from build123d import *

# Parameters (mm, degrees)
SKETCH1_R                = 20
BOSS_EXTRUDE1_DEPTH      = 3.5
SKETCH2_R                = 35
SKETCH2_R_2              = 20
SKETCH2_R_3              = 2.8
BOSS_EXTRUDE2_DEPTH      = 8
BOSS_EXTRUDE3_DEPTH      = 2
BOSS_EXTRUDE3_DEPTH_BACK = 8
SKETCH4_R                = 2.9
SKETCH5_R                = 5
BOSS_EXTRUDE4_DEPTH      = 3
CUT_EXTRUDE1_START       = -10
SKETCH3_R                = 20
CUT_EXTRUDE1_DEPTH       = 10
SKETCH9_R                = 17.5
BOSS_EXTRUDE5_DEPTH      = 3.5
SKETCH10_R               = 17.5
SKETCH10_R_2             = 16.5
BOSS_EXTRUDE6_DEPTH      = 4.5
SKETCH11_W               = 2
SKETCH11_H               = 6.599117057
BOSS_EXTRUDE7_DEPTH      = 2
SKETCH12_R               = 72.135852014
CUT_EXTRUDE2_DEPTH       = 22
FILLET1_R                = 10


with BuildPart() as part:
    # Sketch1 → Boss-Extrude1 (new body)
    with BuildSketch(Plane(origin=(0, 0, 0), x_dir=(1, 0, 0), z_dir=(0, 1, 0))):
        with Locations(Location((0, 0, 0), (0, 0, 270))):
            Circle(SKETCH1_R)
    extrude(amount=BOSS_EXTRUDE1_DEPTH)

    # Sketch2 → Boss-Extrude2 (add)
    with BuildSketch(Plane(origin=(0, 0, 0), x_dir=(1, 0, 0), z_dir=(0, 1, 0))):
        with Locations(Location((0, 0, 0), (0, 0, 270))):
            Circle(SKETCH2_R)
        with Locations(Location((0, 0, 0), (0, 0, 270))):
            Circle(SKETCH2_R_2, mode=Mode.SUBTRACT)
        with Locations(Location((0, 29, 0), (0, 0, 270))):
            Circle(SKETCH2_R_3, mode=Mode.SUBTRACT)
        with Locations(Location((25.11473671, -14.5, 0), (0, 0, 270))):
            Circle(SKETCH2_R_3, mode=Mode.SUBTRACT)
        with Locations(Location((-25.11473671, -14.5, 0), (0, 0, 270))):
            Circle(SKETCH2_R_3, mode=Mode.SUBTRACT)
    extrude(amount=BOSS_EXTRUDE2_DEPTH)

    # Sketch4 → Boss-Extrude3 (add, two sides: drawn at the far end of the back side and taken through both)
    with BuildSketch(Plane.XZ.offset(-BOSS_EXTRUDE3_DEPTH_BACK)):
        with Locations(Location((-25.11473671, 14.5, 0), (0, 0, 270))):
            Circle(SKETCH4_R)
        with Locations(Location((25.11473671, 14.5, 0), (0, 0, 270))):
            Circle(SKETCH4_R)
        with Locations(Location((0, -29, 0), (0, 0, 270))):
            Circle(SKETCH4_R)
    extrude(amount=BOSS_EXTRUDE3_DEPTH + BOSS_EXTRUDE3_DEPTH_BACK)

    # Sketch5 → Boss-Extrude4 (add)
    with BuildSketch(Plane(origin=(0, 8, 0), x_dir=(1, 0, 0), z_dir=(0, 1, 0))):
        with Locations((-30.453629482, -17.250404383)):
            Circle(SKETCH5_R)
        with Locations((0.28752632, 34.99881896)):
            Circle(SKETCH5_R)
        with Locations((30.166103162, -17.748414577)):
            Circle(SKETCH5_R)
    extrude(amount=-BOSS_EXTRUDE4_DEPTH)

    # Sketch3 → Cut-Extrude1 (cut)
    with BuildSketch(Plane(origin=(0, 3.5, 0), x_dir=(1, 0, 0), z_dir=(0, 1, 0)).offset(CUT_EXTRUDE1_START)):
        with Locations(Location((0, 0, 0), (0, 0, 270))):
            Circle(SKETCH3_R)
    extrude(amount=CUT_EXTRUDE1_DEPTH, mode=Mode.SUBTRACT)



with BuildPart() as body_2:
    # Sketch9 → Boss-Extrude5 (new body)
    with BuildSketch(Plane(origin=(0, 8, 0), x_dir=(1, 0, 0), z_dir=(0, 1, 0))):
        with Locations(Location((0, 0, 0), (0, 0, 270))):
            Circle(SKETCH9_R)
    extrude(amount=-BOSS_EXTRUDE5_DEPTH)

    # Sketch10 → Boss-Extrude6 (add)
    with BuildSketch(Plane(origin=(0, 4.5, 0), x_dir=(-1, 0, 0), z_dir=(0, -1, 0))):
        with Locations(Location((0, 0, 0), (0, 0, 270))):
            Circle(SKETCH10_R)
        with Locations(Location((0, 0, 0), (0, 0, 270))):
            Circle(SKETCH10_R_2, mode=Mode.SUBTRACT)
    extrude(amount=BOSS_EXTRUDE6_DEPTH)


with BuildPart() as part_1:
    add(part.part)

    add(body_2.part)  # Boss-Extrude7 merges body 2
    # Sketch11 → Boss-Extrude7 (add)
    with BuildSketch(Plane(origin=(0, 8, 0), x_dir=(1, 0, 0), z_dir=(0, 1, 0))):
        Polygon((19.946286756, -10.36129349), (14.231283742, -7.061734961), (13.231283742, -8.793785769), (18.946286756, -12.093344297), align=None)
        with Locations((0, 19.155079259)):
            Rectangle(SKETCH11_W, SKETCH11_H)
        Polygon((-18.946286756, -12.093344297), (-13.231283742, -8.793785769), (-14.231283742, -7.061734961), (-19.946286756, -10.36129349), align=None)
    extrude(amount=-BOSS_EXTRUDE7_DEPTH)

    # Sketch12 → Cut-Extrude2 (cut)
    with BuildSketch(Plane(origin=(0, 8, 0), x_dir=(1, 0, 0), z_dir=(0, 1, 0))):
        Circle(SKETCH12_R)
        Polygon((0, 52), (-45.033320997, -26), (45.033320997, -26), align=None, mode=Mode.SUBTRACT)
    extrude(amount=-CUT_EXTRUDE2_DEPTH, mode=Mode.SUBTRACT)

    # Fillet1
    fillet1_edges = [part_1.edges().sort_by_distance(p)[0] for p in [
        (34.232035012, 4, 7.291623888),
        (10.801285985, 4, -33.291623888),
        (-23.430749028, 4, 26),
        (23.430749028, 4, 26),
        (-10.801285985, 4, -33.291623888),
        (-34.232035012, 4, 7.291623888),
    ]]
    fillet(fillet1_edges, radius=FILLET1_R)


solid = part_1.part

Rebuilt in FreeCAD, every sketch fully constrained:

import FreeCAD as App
import Part
import Sketcher
Q = App.Units.Quantity


def edges_at(feature, points):
    """Names of the edges that pass closest to the given points."""
    edges = feature.Shape.Edges
    near = lambda p: min(range(len(edges)), key=lambda i: edges[i].distToShape(Part.Vertex(*p))[0])
    return sorted({f"Edge{near(p) + 1}" for p in points})


def add_polygon(sketch, points):
    """Adds a closed chain of lines whose ends are joined by coincident constraints."""
    first, n = sketch.GeometryCount, len(points)
    for a, b in zip(points, points[1:] + points[:1]):
        sketch.addGeometry(Part.LineSegment(App.Vector(*a, 0), App.Vector(*b, 0)), False)
    for i in range(n):
        sketch.addConstraint(Sketcher.Constraint("Coincident", first + i, 2, first + (i + 1) % n, 1))

doc = App.newDocument("Part")
body = doc.addObject("PartDesign::Body", "Body")

# Sketch on XZ plane
sketch1 = body.newObject("Sketcher::SketchObject", "Sketch")
sketch1.AttachmentSupport = (doc.getObject("XZ_Plane"), [""])
sketch1.MapMode = "FlatFace"
sketch1.addGeometry(Part.Circle(App.Vector(0, 0, 0), App.Vector(0, 0, 1), 20), False)
sketch1.addConstraint([
    Sketcher.Constraint("Coincident", 0, 3, -1, 1),
    Sketcher.Constraint("Diameter", 0, Q("40 mm")),
])
pad1 = body.newObject("PartDesign::Pad", "Pad")
pad1.Profile = sketch1
pad1.Length = 3.5
pad1.Reversed = True

# Sketch on XZ plane
sketch2 = body.newObject("Sketcher::SketchObject", "Sketch001")
sketch2.AttachmentSupport = (doc.getObject("XZ_Plane"), [""])
sketch2.MapMode = "FlatFace"
sketch2.addGeometry([
    Part.Circle(App.Vector(0, 0, 0), App.Vector(0, 0, 1), 35),  # 0
    Part.Circle(App.Vector(0, -29, 0), App.Vector(0, 0, 1), 2.8),  # 1
    Part.Circle(App.Vector(-25.114737, 14.5, 0), App.Vector(0, 0, 1), 2.8),  # 2
    Part.Circle(App.Vector(0, 0, 0), App.Vector(0, 0, 1), 20),  # 3
    Part.Circle(App.Vector(25.114737, 14.5, 0), App.Vector(0, 0, 1), 2.8),  # 4
], False)
sketch2.addConstraint([
    Sketcher.Constraint("Coincident", 0, 3, -1, 1),
    Sketcher.Constraint("Coincident", 3, 3, -1, 1),
    Sketcher.Constraint("Equal", 1, 2),
    Sketcher.Constraint("Equal", 2, 4),
    Sketcher.Constraint("Symmetric", 2, 3, 4, 3, -2),
    Sketcher.Constraint("PointOnObject", 1, 3, -2),
    Sketcher.Constraint("Diameter", 0, Q("70 mm")),
    Sketcher.Constraint("Diameter", 3, Q("40 mm")),
    Sketcher.Constraint("Diameter", 1, Q("5.6 mm")),
    Sketcher.Constraint("DistanceY", 1, 3, -1, 1, Q("29 mm")),
    Sketcher.Constraint("DistanceY", -1, 1, 2, 3, Q("14.5 mm")),
    Sketcher.Constraint("DistanceX", 2, 3, -1, 1, Q("25.114737 mm")),
])
pad2 = body.newObject("PartDesign::Pad", "Pad001")
pad2.Profile = sketch2
pad2.Length = 8
pad2.Reversed = True

# Sketch on XZ plane
sketch3 = body.newObject("Sketcher::SketchObject", "Sketch002")
sketch3.AttachmentSupport = (doc.getObject("XZ_Plane"), [""])
sketch3.MapMode = "FlatFace"
sketch3.addGeometry([
    Part.Circle(App.Vector(-25.114737, 14.5, 0), App.Vector(0, 0, 1), 2.9),
    Part.Circle(App.Vector(25.114737, 14.5, 0), App.Vector(0, 0, 1), 2.9),
    Part.Circle(App.Vector(0, -29, 0), App.Vector(0, 0, 1), 2.9),
], False)
sketch3.addConstraint([
    Sketcher.Constraint("Equal", 0, 1),
    Sketcher.Constraint("Equal", 1, 2),
    Sketcher.Constraint("Symmetric", 0, 3, 1, 3, -2),
    Sketcher.Constraint("PointOnObject", 2, 3, -2),
    Sketcher.Constraint("Diameter", 0, Q("5.8 mm")),
    Sketcher.Constraint("DistanceY", 2, 3, -1, 1, Q("29 mm")),
    Sketcher.Constraint("DistanceY", -1, 1, 0, 3, Q("14.5 mm")),
    Sketcher.Constraint("DistanceX", 0, 3, -1, 1, Q("25.114737 mm")),
])
pad3 = body.newObject("PartDesign::Pad", "Pad002")
pad3.Profile = sketch3
pad3.Type = "TwoLengths"
pad3.Length = 2
pad3.Length2 = 8

# Sketch on XZ plane
sketch4 = body.newObject("Sketcher::SketchObject", "Sketch003")
sketch4.AttachmentSupport = (doc.getObject("XZ_Plane"), [""])
sketch4.MapMode = "FlatFace"
sketch4.AttachmentOffset = App.Placement(App.Vector(0, 0, -8), App.Rotation())
sketch4.addGeometry([
    Part.Circle(App.Vector(-30.453629, 17.250404, 0), App.Vector(0, 0, 1), 5),
    Part.Circle(App.Vector(0.287526, -34.998819, 0), App.Vector(0, 0, 1), 5),
    Part.Circle(App.Vector(30.166103, 17.748415, 0), App.Vector(0, 0, 1), 5),
], False)
sketch4.addConstraint([
    Sketcher.Constraint("Equal", 0, 1),
    Sketcher.Constraint("Equal", 1, 2),
    Sketcher.Constraint("Diameter", 0, Q("10 mm")),
    Sketcher.Constraint("DistanceX", 0, 3, -1, 1, Q("30.453629 mm")),
    Sketcher.Constraint("DistanceY", 1, 3, -1, 1, Q("34.998819 mm")),
    Sketcher.Constraint("DistanceY", 0, 3, 2, 3, Q("0.49801 mm")),
    Sketcher.Constraint("DistanceY", -1, 1, 0, 3, Q("17.250404 mm")),
    Sketcher.Constraint("DistanceX", -1, 1, 1, 3, Q("0.287526 mm")),
    Sketcher.Constraint("DistanceX", -1, 1, 2, 3, Q("30.166103 mm")),
])
pad4 = body.newObject("PartDesign::Pad", "Pad003")
pad4.Profile = sketch4
pad4.Length = 3

# Sketch on XZ plane
sketch5 = body.newObject("Sketcher::SketchObject", "Sketch004")
sketch5.AttachmentSupport = (doc.getObject("XZ_Plane"), [""])
sketch5.MapMode = "FlatFace"
sketch5.AttachmentOffset = App.Placement(App.Vector(0, 0, 6.5), App.Rotation())
sketch5.addGeometry(Part.Circle(App.Vector(0, 0, 0), App.Vector(0, 0, 1), 20), False)
sketch5.addConstraint([
    Sketcher.Constraint("Coincident", 0, 3, -1, 1),
    Sketcher.Constraint("Diameter", 0, Q("40 mm")),
])
pocket1 = body.newObject("PartDesign::Pocket", "Pocket")
pocket1.Profile = sketch5
pocket1.Length = 10
body2 = doc.addObject("PartDesign::Body", "Body001")

# Sketch on XZ plane
sketch6 = body2.newObject("Sketcher::SketchObject", "Sketch005")
sketch6.AttachmentSupport = (doc.getObject("XZ_Plane001"), [""])
sketch6.MapMode = "FlatFace"
sketch6.AttachmentOffset = App.Placement(App.Vector(0, 0, -8), App.Rotation())
sketch6.addGeometry(Part.Circle(App.Vector(0, 0, 0), App.Vector(0, 0, 1), 17.5), False)
sketch6.addConstraint([
    Sketcher.Constraint("Coincident", 0, 3, -1, 1),
    Sketcher.Constraint("Diameter", 0, Q("35 mm")),
])
pad5 = body2.newObject("PartDesign::Pad", "Pad004")
pad5.Profile = sketch6
pad5.Length = 3.5

# Sketch on XZ plane
sketch7 = body2.newObject("Sketcher::SketchObject", "Sketch006")
sketch7.AttachmentSupport = (doc.getObject("XZ_Plane001"), [""])
sketch7.MapMode = "FlatFace"
sketch7.AttachmentOffset = App.Placement(App.Vector(0, 0, -4.5), App.Rotation())
sketch7.addGeometry([
    Part.Circle(App.Vector(0, 0, 0), App.Vector(0, 0, 1), 17.5),
    Part.Circle(App.Vector(0, 0, 0), App.Vector(0, 0, 1), 16.5),
], False)
sketch7.addConstraint([
    Sketcher.Constraint("Coincident", 0, 3, -1, 1),
    Sketcher.Constraint("Coincident", 1, 3, -1, 1),
    Sketcher.Constraint("Diameter", 0, Q("35 mm")),
    Sketcher.Constraint("Diameter", 1, Q("33 mm")),
])
pad6 = body2.newObject("PartDesign::Pad", "Pad005")
pad6.Profile = sketch7
pad6.Length = 4.5
body.AllowCompound = True
doc.recompute()

boolean = body.newObject("PartDesign::Boolean", "Boolean")
boolean.Type = "Fuse"
boolean.addObjects([body2])

# Sketch on XZ plane
sketch8 = body.newObject("Sketcher::SketchObject", "Sketch007")
sketch8.AttachmentSupport = (doc.getObject("XZ_Plane"), [""])
sketch8.MapMode = "FlatFace"
sketch8.AttachmentOffset = App.Placement(App.Vector(0, 0, -8), App.Rotation())
add_polygon(sketch8, [(19.946287, 10.361293), (14.231284, 7.061735), (13.231284, 8.793786), (18.946287, 12.093344)])  # lines 0-3
add_polygon(sketch8, [(-1, -22.454638), (-1, -15.855521), (1, -15.855521), (1, -22.454638)])  # lines 4-7
add_polygon(sketch8, [(-18.946287, 12.093344), (-13.231284, 8.793786), (-14.231284, 7.061735), (-19.946287, 10.361293)])  # lines 8-11
sketch8.addConstraint([
    Sketcher.Constraint("Vertical", 4),
    Sketcher.Constraint("Horizontal", 5),
    Sketcher.Constraint("Vertical", 6),
    Sketcher.Constraint("Horizontal", 7),
    Sketcher.Constraint("Symmetric", 1, 2, 8, 2, -2),
    Sketcher.Constraint("Symmetric", 0, 2, 9, 2, -2),
    Sketcher.Constraint("Symmetric", 3, 2, 10, 2, -2),
    Sketcher.Constraint("Symmetric", 2, 2, 11, 2, -2),
    Sketcher.Constraint("Perpendicular", 0, 1),
    Sketcher.Constraint("Perpendicular", 1, 2),
    Sketcher.Constraint("Perpendicular", 2, 3),
    Sketcher.Constraint("DistanceX", 5, 1, 5, 2, Q("2 mm")),
    Sketcher.Constraint("Angle", 0, Q("-150 deg")),
    Sketcher.Constraint("Distance", 1, Q("2 mm")),
    Sketcher.Constraint("DistanceX", 4, 2, -1, 1, Q("1 mm")),
    Sketcher.Constraint("DistanceY", 4, 1, 4, 2, Q("6.599117 mm")),
    Sketcher.Constraint("DistanceY", 4, 2, -1, 1, Q("15.855521 mm")),
    Sketcher.Constraint("DistanceY", 1, 2, 2, 2, Q("3.299559 mm")),
    Sketcher.Constraint("DistanceY", 6, 2, 3, 2, Q("32.815931 mm")),
    Sketcher.Constraint("DistanceX", 8, 2, 2, 2, Q("32.17757 mm")),
])
pad7 = body.newObject("PartDesign::Pad", "Pad006")
pad7.Profile = sketch8
pad7.Length = 2

# Sketch on XZ plane
sketch9 = body.newObject("Sketcher::SketchObject", "Sketch008")
sketch9.AttachmentSupport = (doc.getObject("XZ_Plane"), [""])
sketch9.MapMode = "FlatFace"
sketch9.AttachmentOffset = App.Placement(App.Vector(0, 0, -8), App.Rotation())
sketch9.addGeometry(Part.Circle(App.Vector(0, 0, 0), App.Vector(0, 0, 1), 72.135852), False)  # 0
add_polygon(sketch9, [(-45.033321, 26), (0, -52), (45.033321, 26)])  # lines 1-3
sketch9.addConstraint([
    Sketcher.Constraint("Horizontal", 3),
    Sketcher.Constraint("Coincident", 0, 3, -1, 1),
    Sketcher.Constraint("PointOnObject", 1, 2, -2),
    Sketcher.Constraint("Equal", 1, 2),
    Sketcher.Constraint("Angle", 1, Q("-60 deg")),
    Sketcher.Constraint("DistanceY", 1, 2, -1, 1, Q("52 mm")),
    Sketcher.Constraint("DistanceY", -1, 1, 2, 2, Q("26 mm")),
    Sketcher.Constraint("Diameter", 0, Q("144.271704 mm")),
])
pocket2 = body.newObject("PartDesign::Pocket", "Pocket001")
pocket2.Profile = sketch9
pocket2.Length = 22
pocket2.Reversed = True
doc.recompute()

fillet = body.newObject("PartDesign::Fillet", "Fillet")
fillet.Base = (pocket2, edges_at(pocket2, [
    (34.232, 4, 7.292),
    (10.801, 4, -33.292),
    (-23.431, 4, 26),
    (23.431, 4, 26),
    (-10.801, 4, -33.292),
    (-34.232, 4, 7.292),
]))
fillet.Radius = 10

doc.recompute()
